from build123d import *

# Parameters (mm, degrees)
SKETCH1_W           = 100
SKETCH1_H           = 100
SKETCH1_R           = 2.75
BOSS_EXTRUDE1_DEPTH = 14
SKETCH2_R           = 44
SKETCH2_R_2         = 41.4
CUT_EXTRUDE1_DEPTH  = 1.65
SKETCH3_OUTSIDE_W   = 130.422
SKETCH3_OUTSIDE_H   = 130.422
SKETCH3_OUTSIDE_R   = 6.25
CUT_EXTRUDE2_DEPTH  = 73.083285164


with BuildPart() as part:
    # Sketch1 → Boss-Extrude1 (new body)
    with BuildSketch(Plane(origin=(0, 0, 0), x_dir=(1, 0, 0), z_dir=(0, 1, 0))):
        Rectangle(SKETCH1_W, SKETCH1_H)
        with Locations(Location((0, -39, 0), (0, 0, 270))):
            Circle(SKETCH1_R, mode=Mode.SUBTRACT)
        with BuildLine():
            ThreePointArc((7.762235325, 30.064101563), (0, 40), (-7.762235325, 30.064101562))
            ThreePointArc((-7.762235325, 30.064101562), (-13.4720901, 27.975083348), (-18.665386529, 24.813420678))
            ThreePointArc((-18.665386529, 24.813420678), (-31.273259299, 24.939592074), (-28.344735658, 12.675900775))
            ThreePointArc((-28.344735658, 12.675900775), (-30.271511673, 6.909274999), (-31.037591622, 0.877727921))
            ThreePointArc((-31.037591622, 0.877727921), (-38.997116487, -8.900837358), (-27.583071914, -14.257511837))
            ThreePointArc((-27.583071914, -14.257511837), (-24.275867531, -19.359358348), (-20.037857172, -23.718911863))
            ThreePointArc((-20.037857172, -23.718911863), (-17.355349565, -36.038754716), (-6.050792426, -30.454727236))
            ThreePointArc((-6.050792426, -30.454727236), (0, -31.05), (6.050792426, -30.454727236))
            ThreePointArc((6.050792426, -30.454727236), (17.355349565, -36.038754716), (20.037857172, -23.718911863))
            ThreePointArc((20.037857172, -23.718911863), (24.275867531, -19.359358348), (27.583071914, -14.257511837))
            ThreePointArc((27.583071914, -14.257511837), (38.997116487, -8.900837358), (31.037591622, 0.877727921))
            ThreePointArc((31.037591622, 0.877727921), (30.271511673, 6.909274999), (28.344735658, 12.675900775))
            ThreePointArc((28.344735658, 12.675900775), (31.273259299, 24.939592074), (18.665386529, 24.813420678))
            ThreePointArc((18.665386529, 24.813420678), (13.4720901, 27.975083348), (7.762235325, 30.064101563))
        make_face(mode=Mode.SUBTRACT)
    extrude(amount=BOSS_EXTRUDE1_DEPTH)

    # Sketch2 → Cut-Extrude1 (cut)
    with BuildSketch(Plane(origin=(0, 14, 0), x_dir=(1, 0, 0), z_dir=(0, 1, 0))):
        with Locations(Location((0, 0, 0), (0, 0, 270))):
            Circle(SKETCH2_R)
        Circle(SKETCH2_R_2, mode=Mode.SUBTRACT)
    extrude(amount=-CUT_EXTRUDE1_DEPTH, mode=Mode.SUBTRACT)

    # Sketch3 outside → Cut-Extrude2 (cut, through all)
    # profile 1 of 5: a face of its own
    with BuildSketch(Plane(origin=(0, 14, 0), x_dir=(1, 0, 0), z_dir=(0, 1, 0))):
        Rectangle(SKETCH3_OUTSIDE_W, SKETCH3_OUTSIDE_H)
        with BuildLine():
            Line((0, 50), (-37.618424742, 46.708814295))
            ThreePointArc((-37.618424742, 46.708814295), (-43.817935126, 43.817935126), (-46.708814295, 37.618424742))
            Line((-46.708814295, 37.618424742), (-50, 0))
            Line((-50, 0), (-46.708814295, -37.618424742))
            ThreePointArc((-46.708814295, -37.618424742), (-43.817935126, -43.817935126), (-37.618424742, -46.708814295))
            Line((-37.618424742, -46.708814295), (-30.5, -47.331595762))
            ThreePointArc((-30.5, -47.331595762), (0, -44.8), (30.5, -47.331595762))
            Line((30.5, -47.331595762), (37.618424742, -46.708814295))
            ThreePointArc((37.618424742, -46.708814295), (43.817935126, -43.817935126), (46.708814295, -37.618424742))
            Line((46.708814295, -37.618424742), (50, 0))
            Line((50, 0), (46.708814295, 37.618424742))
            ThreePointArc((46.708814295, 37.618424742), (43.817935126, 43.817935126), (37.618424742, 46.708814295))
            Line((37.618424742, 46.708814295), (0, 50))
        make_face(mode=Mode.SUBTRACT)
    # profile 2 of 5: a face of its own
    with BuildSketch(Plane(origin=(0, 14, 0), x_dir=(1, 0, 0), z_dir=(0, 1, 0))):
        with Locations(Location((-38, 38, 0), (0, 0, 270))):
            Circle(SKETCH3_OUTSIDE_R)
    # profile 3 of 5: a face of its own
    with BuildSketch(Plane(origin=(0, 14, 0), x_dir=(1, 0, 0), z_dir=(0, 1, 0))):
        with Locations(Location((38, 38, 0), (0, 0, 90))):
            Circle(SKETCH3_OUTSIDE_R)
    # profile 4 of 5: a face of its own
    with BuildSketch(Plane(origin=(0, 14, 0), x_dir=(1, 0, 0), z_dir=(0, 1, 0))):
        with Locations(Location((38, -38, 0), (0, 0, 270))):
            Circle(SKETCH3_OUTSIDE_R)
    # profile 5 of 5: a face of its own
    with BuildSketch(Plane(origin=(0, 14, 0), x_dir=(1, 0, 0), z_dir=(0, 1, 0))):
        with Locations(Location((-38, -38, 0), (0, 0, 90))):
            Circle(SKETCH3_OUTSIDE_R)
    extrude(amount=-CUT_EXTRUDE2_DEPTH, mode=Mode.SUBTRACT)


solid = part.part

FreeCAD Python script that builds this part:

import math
import FreeCAD as App
import Part
import Sketcher

V = App.Vector
Q = App.Units.Quantity

doc = App.newDocument("Part")
body = doc.addObject("PartDesign::Body", "Body")

# Sketch on XZ plane
sketch1 = doc.addObject("Sketcher::SketchObject", "Sketch")
body.addObject(sketch1)
sketch1.AttachmentSupport = (doc.XZ_Plane, [""])
sketch1.MapMode = "FlatFace"
sketch1.addGeometry(Part.LineSegment(V(-50, -50, 0), V(-50, 50, 0)), False)
sketch1.addGeometry(Part.LineSegment(V(-50, 50, 0), V(50, 50, 0)), False)
sketch1.addGeometry(Part.LineSegment(V(50, 50, 0), V(50, -50, 0)), False)
sketch1.addGeometry(Part.LineSegment(V(50, -50, 0), V(-50, -50, 0)), False)
sketch1.addGeometry(Part.Circle(V(0, 39, 0), V(0, 0, 1), 2.8), False)
sketch1.addGeometry(Part.ArcOfCircle(Part.Circle(V(0, -32, 0), V(0, 0, 1), 8), math.radians(166), math.radians(374)), False)
sketch1.addGeometry(Part.ArcOfCircle(Part.Circle(V(0, 0, 0), V(0, 0, 1), 31.1), math.radians(-76), math.radians(-53)), False)
sketch1.addGeometry(Part.ArcOfCircle(Part.Circle(V(25, -20, 0), V(0, 0, 1), 8), math.radians(-143), math.radians(65)), False)
sketch1.addGeometry(Part.ArcOfCircle(Part.Circle(V(0, 0, 0), V(0, 0, 1), 31.1), math.radians(-24), math.radians(-2)), False)
sketch1.addGeometry(Part.ArcOfCircle(Part.Circle(V(31.2, 7.1, 0), V(0, 0, 1), 8), math.radians(-91), math.radians(117)), False)
sketch1.addGeometry(Part.ArcOfCircle(Part.Circle(V(0, 0, 0), V(0, 0, 1), 31), math.radians(27), math.radians(50)), False)
sketch1.addGeometry(Part.ArcOfCircle(Part.Circle(V(13.9, 28.8, 0), V(0, 0, 1), 8), math.radians(-40), math.radians(168)), False)
sketch1.addGeometry(Part.ArcOfCircle(Part.Circle(V(0, 0, 0), V(0, 0, 1), 31.1), math.radians(79), math.radians(101)), False)
sketch1.addGeometry(Part.ArcOfCircle(Part.Circle(V(-13.9, 28.8, 0), V(0, 0, 1), 8), math.radians(12), math.radians(220)), False)
sketch1.addGeometry(Part.ArcOfCircle(Part.Circle(V(0, 0, 0), V(0, 0, 1), 31), math.radians(130), math.radians(153)), False)
sketch1.addGeometry(Part.ArcOfCircle(Part.Circle(V(-31.2, 7.1, 0), V(0, 0, 1), 8), math.radians(63), math.radians(271)), False)
sketch1.addGeometry(Part.ArcOfCircle(Part.Circle(V(0, 0, 0), V(0, 0, 1), 31.1), math.radians(-178), math.radians(-156)), False)
sketch1.addGeometry(Part.ArcOfCircle(Part.Circle(V(-25, -20, 0), V(0, 0, 1), 8), math.radians(115), math.radians(323)), False)
sketch1.addGeometry(Part.ArcOfCircle(Part.Circle(V(0, 0, 0), V(0, 0, 1), 31.1), math.radians(-127), math.radians(-104)), False)
sketch1.addConstraint(Sketcher.Constraint("Coincident", 0, 2, 1, 1))
sketch1.addConstraint(Sketcher.Constraint("Coincident", 1, 2, 2, 1))
sketch1.addConstraint(Sketcher.Constraint("Coincident", 2, 2, 3, 1))
sketch1.addConstraint(Sketcher.Constraint("Coincident", 3, 2, 0, 1))
sketch1.addConstraint(Sketcher.Constraint("Coincident", 5, 2, 6, 1))
sketch1.addConstraint(Sketcher.Constraint("Coincident", 6, 2, 7, 1))
sketch1.addConstraint(Sketcher.Constraint("Coincident", 7, 2, 8, 1))
sketch1.addConstraint(Sketcher.Constraint("Coincident", 8, 2, 9, 1))
sketch1.addConstraint(Sketcher.Constraint("Coincident", 9, 2, 10, 1))
sketch1.addConstraint(Sketcher.Constraint("Coincident", 10, 2, 11, 1))
sketch1.addConstraint(Sketcher.Constraint("Coincident", 11, 2, 12, 1))
sketch1.addConstraint(Sketcher.Constraint("Coincident", 12, 2, 13, 1))
sketch1.addConstraint(Sketcher.Constraint("Coincident", 13, 2, 14, 1))
sketch1.addConstraint(Sketcher.Constraint("Coincident", 14, 2, 15, 1))
sketch1.addConstraint(Sketcher.Constraint("Coincident", 15, 2, 16, 1))
sketch1.addConstraint(Sketcher.Constraint("Coincident", 16, 2, 17, 1))
sketch1.addConstraint(Sketcher.Constraint("Coincident", 17, 2, 18, 1))
sketch1.addConstraint(Sketcher.Constraint("Coincident", 18, 2, 5, 1))
sketch1.addConstraint(Sketcher.Constraint("Vertical", 0))
sketch1.addConstraint(Sketcher.Constraint("Horizontal", 1))
sketch1.addConstraint(Sketcher.Constraint("Vertical", 2))
sketch1.addConstraint(Sketcher.Constraint("Horizontal", 3))
sketch1.addConstraint(Sketcher.Constraint("Coincident", 6, 3, -1, 1))
sketch1.addConstraint(Sketcher.Constraint("Coincident", 8, 3, -1, 1))
sketch1.addConstraint(Sketcher.Constraint("Coincident", 10, 3, -1, 1))
sketch1.addConstraint(Sketcher.Constraint("Coincident", 12, 3, -1, 1))
sketch1.addConstraint(Sketcher.Constraint("Coincident", 14, 3, -1, 1))
sketch1.addConstraint(Sketcher.Constraint("Coincident", 16, 3, -1, 1))
sketch1.addConstraint(Sketcher.Constraint("Coincident", 18, 3, -1, 1))
sketch1.addConstraint(Sketcher.Constraint("Equal", 5, 7))
sketch1.addConstraint(Sketcher.Constraint("Equal", 6, 8))
sketch1.addConstraint(Sketcher.Constraint("Equal", 7, 9))
sketch1.addConstraint(Sketcher.Constraint("Equal", 8, 10))
sketch1.addConstraint(Sketcher.Constraint("Equal", 9, 11))
sketch1.addConstraint(Sketcher.Constraint("Equal", 10, 12))
sketch1.addConstraint(Sketcher.Constraint("Equal", 11, 13))
sketch1.addConstraint(Sketcher.Constraint("Equal", 12, 14))
sketch1.addConstraint(Sketcher.Constraint("Equal", 13, 15))
sketch1.addConstraint(Sketcher.Constraint("Equal", 14, 16))
sketch1.addConstraint(Sketcher.Constraint("Equal", 15, 17))
sketch1.addConstraint(Sketcher.Constraint("Equal", 16, 18))
sketch1.addConstraint(Sketcher.Constraint("Symmetric", 0, 2, 2, 2, -1, 1))
sketch1.addConstraint(Sketcher.Constraint("Symmetric", 11, 3, 13, 3, -2))
sketch1.addConstraint(Sketcher.Constraint("Symmetric", 9, 3, 15, 3, -2))
sketch1.addConstraint(Sketcher.Constraint("Symmetric", 7, 3, 17, 3, -2))
sketch1.addConstraint(Sketcher.Constraint("PointOnObject", 4, 3, -2))
sketch1.addConstraint(Sketcher.Constraint("PointOnObject", 5, 3, -2))
sketch1.addConstraint(Sketcher.Constraint("Equal", 3, 0))
sketch1.addConstraint(Sketcher.Constraint("Radius", 5, 8.0))
sketch1.addConstraint(Sketcher.Constraint("Diameter", 4, 5.5))
sketch1.addConstraint(Sketcher.Constraint("DistanceX", 1, 1, 1, 2, 100.0))
sketch1.addConstraint(Sketcher.Constraint("Radius", 6, 31.05))
sketch1.addConstraint(Sketcher.Constraint("DistanceY", -1, 1, 4, 3, 39.0))
sketch1.addConstraint(Sketcher.Constraint("DistanceY", 5, 3, -1, 1, 32.0))
sketch1.addConstraint(Sketcher.Constraint("DistanceY", 7, 2, -1, 1, 12.675901))
sketch1.addConstraint(Sketcher.Constraint("DistanceX", 8, 2, 9, 3, 0.160102))
sketch1.addConstraint(Sketcher.Constraint("DistanceY", 9, 2, 10, 2, 9.4614))
sketch1.addConstraint(Sketcher.Constraint("DistanceY", -1, 1, 9, 3, 7.12067))
sketch1.addConstraint(Sketcher.Constraint("DistanceX", -1, 1, 11, 3, 13.88428))
sketch1.addConstraint(Sketcher.Constraint("DistanceY", 6, 2, -1, 1, 24.813421))
pad1 = doc.addObject("PartDesign::Pad", "Pad")
body.addObject(pad1)
pad1.Profile = sketch1
pad1.Length = 14
pad1.Reversed = True

# Sketch on XZ plane
sketch2 = doc.addObject("Sketcher::SketchObject", "Sketch001")
body.addObject(sketch2)
sketch2.AttachmentSupport = (doc.XZ_Plane, [""])
sketch2.MapMode = "FlatFace"
sketch2.AttachmentOffset = App.Placement(V(0, 0, -14), App.Rotation())
sketch2.addGeometry(Part.Circle(V(0, 0, 0), V(0, 0, 1), 44), False)
sketch2.addGeometry(Part.Circle(V(0, 0, 0), V(0, 0, 1), 41), False)
sketch2.addConstraint(Sketcher.Constraint("Coincident", 0, 3, -1, 1))
sketch2.addConstraint(Sketcher.Constraint("Coincident", 1, 3, -1, 1))
sketch2.addConstraint(Sketcher.Constraint("Diameter", 0, 88.0))
sketch2.addConstraint(Sketcher.Constraint("Diameter", 1, 82.8))
pocket1 = doc.addObject("PartDesign::Pocket", "Pocket")
body.addObject(pocket1)
pocket1.Profile = sketch2
pocket1.Length = 1.65
pocket1.Reversed = True

# Sketch on XZ plane
sketch3 = doc.addObject("Sketcher::SketchObject", "Sketch002")
body.addObject(sketch3)
sketch3.AttachmentSupport = (doc.XZ_Plane, [""])
sketch3.MapMode = "FlatFace"
sketch3.AttachmentOffset = App.Placement(V(0, 0, -14), App.Rotation())
sketch3.addGeometry(Part.LineSegment(V(-65, -65, 0), V(-65, 65, 0)), False)
sketch3.addGeometry(Part.LineSegment(V(-65, 65, 0), V(65, 65, 0)), False)
sketch3.addGeometry(Part.LineSegment(V(65, 65, 0), V(65, -65, 0)), False)
sketch3.addGeometry(Part.LineSegment(V(65, -65, 0), V(-65, -65, 0)), False)
sketch3.addGeometry(Part.LineSegment(V(-38, -47, 0), V(0, -50, 0)), False)
sketch3.addGeometry(Part.LineSegment(V(0, -50, 0), V(38, -47, 0)), False)
sketch3.addGeometry(Part.ArcOfCircle(Part.Circle(V(37, -37, 0), V(0, 0, 1), 10), math.radians(-85), math.radians(-5)), False)
sketch3.addGeometry(Part.LineSegment(V(47, -38, 0), V(50, 0, 0)), False)
sketch3.addGeometry(Part.LineSegment(V(50, 0, 0), V(47, 38, 0)), False)
sketch3.addGeometry(Part.ArcOfCircle(Part.Circle(V(37, 37, 0), V(0, 0, 1), 10), math.radians(5), math.radians(85)), False)
sketch3.addGeometry(Part.LineSegment(V(38, 47, 0), V(30, 47, 0)), False)
sketch3.addGeometry(Part.ArcOfCircle(Part.Circle(V(0, 230, 0), V(0, 0, 1), 185), math.radians(-99.49), math.radians(-80.51)), False)
sketch3.addGeometry(Part.LineSegment(V(-30, 47, 0), V(-38, 47, 0)), False)
sketch3.addGeometry(Part.ArcOfCircle(Part.Circle(V(-37, 37, 0), V(0, 0, 1), 10), math.radians(95), math.radians(175)), False)
sketch3.addGeometry(Part.LineSegment(V(-47, 38, 0), V(-50, 0, 0)), False)
sketch3.addGeometry(Part.LineSegment(V(-50, 0, 0), V(-47, -38, 0)), False)
sketch3.addGeometry(Part.ArcOfCircle(Part.Circle(V(-37, -37, 0), V(0, 0, 1), 10), math.radians(-175), math.radians(-95)), False)
sketch3.addGeometry(Part.Circle(V(-38, -38, 0), V(0, 0, 1), 6), False)
sketch3.addGeometry(Part.Circle(V(38, -38, 0), V(0, 0, 1), 6), False)
sketch3.addGeometry(Part.Circle(V(38, 38, 0), V(0, 0, 1), 6), False)
sketch3.addGeometry(Part.Circle(V(-38, 38, 0), V(0, 0, 1), 6), False)
sketch3.addConstraint(Sketcher.Constraint("Coincident", 0, 2, 1, 1))
sketch3.addConstraint(Sketcher.Constraint("Coincident", 1, 2, 2, 1))
sketch3.addConstraint(Sketcher.Constraint("Coincident", 2, 2, 3, 1))
sketch3.addConstraint(Sketcher.Constraint("Coincident", 3, 2, 0, 1))
sketch3.addConstraint(Sketcher.Constraint("Coincident", 4, 2, 5, 1))
sketch3.addConstraint(Sketcher.Constraint("Tangent", 5, 2, 6, 1))
sketch3.addConstraint(Sketcher.Constraint("Tangent", 6, 2, 7, 1))
sketch3.addConstraint(Sketcher.Constraint("Coincident", 7, 2, 8, 1))
sketch3.addConstraint(Sketcher.Constraint("Tangent", 8, 2, 9, 1))
sketch3.addConstraint(Sketcher.Constraint("Tangent", 9, 2, 10, 1))
sketch3.addConstraint(Sketcher.Constraint("Coincident", 10, 2, 11, 2))
sketch3.addConstraint(Sketcher.Constraint("Coincident", 11, 1, 12, 1))
sketch3.addConstraint(Sketcher.Constraint("Tangent", 12, 2, 13, 1))
sketch3.addConstraint(Sketcher.Constraint("Tangent", 13, 2, 14, 1))
sketch3.addConstraint(Sketcher.Constraint("Coincident", 14, 2, 15, 1))
sketch3.addConstraint(Sketcher.Constraint("Tangent", 15, 2, 16, 1))
sketch3.addConstraint(Sketcher.Constraint("Tangent", 16, 2, 4, 1))
sketch3.addConstraint(Sketcher.Constraint("Vertical", 0))
sketch3.addConstraint(Sketcher.Constraint("Horizontal", 1))
sketch3.addConstraint(Sketcher.Constraint("Vertical", 2))
sketch3.addConstraint(Sketcher.Constraint("Horizontal", 3))
sketch3.addConstraint(Sketcher.Constraint("Equal", 6, 9))
sketch3.addConstraint(Sketcher.Constraint("Equal", 9, 13))
sketch3.addConstraint(Sketcher.Constraint("Equal", 13, 16))
sketch3.addConstraint(Sketcher.Constraint("Equal", 17, 18))
sketch3.addConstraint(Sketcher.Constraint("Equal", 18, 19))
sketch3.addConstraint(Sketcher.Constraint("Equal", 19, 20))
sketch3.addConstraint(Sketcher.Constraint("Symmetric", 6, 3, 13, 3, -1, 1))
sketch3.addConstraint(Sketcher.Constraint("Symmetric", 9, 3, 16, 3, -1, 1))
sketch3.addConstraint(Sketcher.Constraint("Symmetric", 17, 3, 19, 3, -1, 1))
sketch3.addConstraint(Sketcher.Constraint("Symmetric", 18, 3, 20, 3, -1, 1))
sketch3.addConstraint(Sketcher.Constraint("Symmetric", 0, 2, 2, 2, -1, 1))
sketch3.addConstraint(Sketcher.Constraint("Symmetric", 7, 2, 14, 2, -1, 1))
sketch3.addConstraint(Sketcher.Constraint("Symmetric", 9, 3, 13, 3, -2))
sketch3.addConstraint(Sketcher.Constraint("Symmetric", 17, 3, 18, 3, -2))
sketch3.addConstraint(Sketcher.Constraint("Symmetric", 10, 2, 11, 1, -2))
sketch3.addConstraint(Sketcher.Constraint("PointOnObject", 4, 2, -2))
sketch3.addConstraint(Sketcher.Constraint("PointOnObject", 7, 2, -1))
sketch3.addConstraint(Sketcher.Constraint("Perpendicular", 4, 7))
sketch3.addConstraint(Sketcher.Constraint("Perpendicular", 7, 10))
sketch3.addConstraint(Sketcher.Constraint("Equal", 3, 0))
sketch3.addConstraint(Sketcher.Constraint("Equal", 5, 7))
sketch3.addConstraint(Sketcher.Constraint("Radius", 6, 10.0))
sketch3.addConstraint(Sketcher.Constraint("Diameter", 17, 12.5))
sketch3.addConstraint(Sketcher.Constraint("Angle", 4, Q("-5 deg")))
sketch3.addConstraint(Sketcher.Constraint("DistanceX", 17, 3, -1, 1, 38.0))
sketch3.addConstraint(Sketcher.Constraint("DistanceY", 17, 3, -1, 1, 38.0))
sketch3.addConstraint(Sketcher.Constraint("DistanceY", 4, 2, -1, 1, 50.0))
sketch3.addConstraint(Sketcher.Constraint("DistanceX", 11, 1, 10, 2, 61.0))
sketch3.addConstraint(Sketcher.Constraint("DistanceX", 1, 1, 1, 2, 130.422))
sketch3.addConstraint(Sketcher.Constraint("Radius", 11, 184.993788))
pocket2 = doc.addObject("PartDesign::Pocket", "Pocket001")
body.addObject(pocket2)
pocket2.Profile = sketch3
pocket2.Length = 73.083285
pocket2.Reversed = True

doc.recompute()
